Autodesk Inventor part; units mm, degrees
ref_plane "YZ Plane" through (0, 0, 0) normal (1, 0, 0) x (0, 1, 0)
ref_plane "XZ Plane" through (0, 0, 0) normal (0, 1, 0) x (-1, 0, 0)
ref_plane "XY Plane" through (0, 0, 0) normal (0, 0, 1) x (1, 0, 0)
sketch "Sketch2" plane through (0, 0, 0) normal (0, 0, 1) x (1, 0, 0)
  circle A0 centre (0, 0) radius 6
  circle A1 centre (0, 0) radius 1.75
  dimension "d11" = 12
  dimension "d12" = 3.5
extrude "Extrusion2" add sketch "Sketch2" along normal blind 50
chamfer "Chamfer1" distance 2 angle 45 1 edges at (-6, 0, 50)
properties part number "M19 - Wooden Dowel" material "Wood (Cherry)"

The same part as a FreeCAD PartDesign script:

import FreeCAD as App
import Part
import Sketcher
from FreeCAD import Vector


def edges_at(feature, points):
    """Names of the edges that pass closest to the given points."""
    edges = feature.Shape.Edges
    near = lambda p: min(range(len(edges)), key=lambda i: edges[i].distToShape(Part.Vertex(*p))[0])
    return sorted({f"Edge{near(p) + 1}" for p in points})

doc = App.newDocument("Part")
body = doc.addObject("PartDesign::Body", "Body")

sketch1 = body.newObject("Sketcher::SketchObject", "Sketch")
sketch1.AttachmentSupport = (doc.getObject("XY_Plane"), [""])
sketch1.MapMode = "FlatFace"
sketch1.addGeometry(Part.Circle(Vector(0, 0, 0), Vector(0, 0, 1), 6), False)
sketch1.addGeometry(Part.Circle(Vector(0, 0, 0), Vector(0, 0, 1), 1.8), False)
sketch1.addConstraint(Sketcher.Constraint("Coincident", 0, 3, -1, 1))
sketch1.addConstraint(Sketcher.Constraint("Coincident", 1, 3, -1, 1))
sketch1.addConstraint(Sketcher.Constraint("Diameter", 0, 12.0))
sketch1.addConstraint(Sketcher.Constraint("Diameter", 1, 3.5))
pad1 = body.newObject("PartDesign::Pad", "Pad")
pad1.Profile = sketch1
pad1.Length = 50
doc.recompute()

chamfer = body.newObject("PartDesign::Chamfer", "Chamfer")
chamfer.Base = (pad1, edges_at(pad1, [(-6, 0, 50)]))
chamfer.Size = 2

doc.recompute()
